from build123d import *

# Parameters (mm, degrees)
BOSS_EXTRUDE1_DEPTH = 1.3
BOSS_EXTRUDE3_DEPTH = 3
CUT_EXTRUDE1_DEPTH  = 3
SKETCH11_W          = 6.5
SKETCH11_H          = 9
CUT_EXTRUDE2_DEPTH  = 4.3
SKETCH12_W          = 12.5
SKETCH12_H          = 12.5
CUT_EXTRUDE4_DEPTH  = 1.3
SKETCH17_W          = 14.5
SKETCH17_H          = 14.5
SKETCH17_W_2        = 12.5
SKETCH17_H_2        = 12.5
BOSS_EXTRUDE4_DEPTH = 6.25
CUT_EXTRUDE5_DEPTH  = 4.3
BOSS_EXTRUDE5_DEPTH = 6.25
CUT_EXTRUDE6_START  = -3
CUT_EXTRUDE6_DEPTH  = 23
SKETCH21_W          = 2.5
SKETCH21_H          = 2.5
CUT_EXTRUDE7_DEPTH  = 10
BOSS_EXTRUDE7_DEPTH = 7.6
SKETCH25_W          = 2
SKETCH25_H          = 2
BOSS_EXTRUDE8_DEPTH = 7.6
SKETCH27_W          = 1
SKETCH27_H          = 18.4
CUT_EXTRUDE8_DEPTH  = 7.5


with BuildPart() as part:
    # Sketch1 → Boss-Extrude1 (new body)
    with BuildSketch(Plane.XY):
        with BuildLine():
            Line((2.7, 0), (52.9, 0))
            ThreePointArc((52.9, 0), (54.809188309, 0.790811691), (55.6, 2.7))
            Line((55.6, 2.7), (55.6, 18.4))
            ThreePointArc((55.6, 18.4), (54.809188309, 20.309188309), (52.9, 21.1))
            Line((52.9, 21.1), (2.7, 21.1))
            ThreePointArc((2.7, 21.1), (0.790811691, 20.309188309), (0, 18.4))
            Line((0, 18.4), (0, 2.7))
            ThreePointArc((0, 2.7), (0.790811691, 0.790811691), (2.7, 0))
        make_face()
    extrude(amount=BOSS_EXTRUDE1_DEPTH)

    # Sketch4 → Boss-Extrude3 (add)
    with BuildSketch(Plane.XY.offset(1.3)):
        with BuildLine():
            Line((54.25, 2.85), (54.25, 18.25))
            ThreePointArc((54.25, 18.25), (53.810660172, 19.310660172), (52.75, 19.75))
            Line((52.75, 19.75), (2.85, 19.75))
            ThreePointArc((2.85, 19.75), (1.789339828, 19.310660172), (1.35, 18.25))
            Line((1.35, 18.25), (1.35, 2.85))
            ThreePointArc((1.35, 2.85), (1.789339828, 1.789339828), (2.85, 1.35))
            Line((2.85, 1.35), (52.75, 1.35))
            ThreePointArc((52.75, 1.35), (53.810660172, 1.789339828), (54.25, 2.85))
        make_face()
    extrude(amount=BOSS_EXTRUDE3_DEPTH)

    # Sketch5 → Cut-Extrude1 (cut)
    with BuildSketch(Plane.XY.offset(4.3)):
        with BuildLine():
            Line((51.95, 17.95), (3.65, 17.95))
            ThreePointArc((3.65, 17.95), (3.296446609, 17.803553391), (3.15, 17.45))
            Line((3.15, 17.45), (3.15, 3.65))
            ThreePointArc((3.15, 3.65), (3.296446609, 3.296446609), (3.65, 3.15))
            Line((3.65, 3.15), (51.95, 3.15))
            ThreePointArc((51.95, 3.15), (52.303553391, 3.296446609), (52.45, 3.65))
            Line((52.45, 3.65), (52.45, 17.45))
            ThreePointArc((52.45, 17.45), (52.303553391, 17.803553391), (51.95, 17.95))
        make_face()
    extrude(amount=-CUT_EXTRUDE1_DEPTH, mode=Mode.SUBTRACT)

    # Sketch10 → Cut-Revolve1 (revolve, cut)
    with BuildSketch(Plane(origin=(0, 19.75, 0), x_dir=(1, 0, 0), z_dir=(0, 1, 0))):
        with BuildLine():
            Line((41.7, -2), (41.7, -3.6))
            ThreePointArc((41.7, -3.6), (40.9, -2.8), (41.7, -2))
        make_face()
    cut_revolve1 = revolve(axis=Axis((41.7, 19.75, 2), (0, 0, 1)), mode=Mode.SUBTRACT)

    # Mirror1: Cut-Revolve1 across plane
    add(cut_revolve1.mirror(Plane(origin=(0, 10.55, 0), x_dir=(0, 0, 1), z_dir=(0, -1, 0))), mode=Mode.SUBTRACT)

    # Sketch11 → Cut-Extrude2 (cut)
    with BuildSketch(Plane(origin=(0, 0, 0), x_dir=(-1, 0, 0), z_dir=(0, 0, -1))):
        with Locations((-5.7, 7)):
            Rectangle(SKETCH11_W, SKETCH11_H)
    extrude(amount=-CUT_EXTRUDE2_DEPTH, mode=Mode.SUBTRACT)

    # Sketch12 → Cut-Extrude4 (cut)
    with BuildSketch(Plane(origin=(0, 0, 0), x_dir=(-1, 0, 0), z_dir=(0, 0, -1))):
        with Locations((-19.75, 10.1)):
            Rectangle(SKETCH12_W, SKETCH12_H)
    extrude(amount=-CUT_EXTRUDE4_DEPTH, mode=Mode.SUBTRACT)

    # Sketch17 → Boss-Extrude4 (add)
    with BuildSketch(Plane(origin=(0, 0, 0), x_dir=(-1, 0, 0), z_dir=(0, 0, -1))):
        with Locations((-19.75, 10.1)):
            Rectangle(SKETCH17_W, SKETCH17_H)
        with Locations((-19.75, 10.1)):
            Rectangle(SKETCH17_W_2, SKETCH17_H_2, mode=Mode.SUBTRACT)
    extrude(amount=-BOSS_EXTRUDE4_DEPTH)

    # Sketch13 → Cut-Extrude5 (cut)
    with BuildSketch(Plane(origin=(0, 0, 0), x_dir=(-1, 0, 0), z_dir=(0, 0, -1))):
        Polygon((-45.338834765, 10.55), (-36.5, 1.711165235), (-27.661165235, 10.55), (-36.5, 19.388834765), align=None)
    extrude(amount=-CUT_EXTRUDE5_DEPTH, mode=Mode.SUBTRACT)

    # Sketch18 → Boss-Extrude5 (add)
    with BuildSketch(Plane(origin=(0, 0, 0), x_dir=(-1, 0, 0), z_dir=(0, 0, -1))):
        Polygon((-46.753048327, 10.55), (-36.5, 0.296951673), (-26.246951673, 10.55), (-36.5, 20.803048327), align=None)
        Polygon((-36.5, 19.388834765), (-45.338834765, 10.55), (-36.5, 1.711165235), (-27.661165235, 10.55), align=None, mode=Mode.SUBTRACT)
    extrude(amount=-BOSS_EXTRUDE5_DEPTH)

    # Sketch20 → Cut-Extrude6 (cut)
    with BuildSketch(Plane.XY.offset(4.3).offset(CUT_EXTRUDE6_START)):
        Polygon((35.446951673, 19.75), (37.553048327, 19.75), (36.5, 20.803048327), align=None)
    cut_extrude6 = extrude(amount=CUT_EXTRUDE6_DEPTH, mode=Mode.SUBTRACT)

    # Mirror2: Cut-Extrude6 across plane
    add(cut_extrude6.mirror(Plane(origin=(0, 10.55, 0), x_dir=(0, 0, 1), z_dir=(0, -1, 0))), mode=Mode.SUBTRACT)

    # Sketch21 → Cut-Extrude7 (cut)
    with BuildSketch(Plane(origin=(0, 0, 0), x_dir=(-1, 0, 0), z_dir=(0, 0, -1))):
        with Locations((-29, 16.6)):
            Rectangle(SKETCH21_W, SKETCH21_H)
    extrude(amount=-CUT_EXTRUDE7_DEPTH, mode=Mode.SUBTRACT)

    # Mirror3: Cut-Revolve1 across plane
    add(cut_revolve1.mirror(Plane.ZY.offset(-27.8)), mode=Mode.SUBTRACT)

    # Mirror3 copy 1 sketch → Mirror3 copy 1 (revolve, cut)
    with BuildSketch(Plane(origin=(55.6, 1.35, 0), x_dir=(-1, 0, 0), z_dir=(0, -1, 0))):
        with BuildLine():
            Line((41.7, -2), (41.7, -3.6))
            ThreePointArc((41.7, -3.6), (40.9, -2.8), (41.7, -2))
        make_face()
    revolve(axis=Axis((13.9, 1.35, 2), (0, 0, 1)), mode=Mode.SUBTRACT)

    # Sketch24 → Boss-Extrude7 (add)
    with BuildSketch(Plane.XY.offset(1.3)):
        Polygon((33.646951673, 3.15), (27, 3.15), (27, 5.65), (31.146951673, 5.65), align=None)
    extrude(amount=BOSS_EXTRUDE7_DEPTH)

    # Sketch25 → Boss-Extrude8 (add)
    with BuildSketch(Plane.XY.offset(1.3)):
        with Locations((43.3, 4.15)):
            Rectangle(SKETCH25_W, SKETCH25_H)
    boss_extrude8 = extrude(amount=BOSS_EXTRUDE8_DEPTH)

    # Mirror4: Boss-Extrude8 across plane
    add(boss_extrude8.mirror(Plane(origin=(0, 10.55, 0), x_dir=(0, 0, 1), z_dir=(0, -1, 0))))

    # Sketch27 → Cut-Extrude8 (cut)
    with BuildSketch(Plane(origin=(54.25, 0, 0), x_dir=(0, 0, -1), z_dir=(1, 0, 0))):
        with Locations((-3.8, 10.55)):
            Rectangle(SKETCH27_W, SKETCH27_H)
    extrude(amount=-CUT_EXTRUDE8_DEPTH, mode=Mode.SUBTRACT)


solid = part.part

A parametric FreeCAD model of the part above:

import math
import FreeCAD as App
import Part
import Sketcher
from FreeCAD import Vector
Q = App.Units.Quantity

doc = App.newDocument("Part")
body = doc.addObject("PartDesign::Body", "Body")

sketch1 = doc.addObject("Sketcher::SketchObject", "Sketch")
body.addObject(sketch1)
sketch1.AttachmentSupport = (doc.XY_Plane, [""])
sketch1.MapMode = "FlatFace"
sketch1.addGeometry([
    Part.LineSegment(Vector(2.7, 0, 0), Vector(52.9, 0, 0)),
    Part.ArcOfCircle(Part.Circle(Vector(52.9, 2.7, 0), Vector(0, 0, 1), 2.7), math.radians(-90), math.radians(0)),
    Part.LineSegment(Vector(55.6, 2.7, 0), Vector(55.6, 18.4, 0)),
    Part.ArcOfCircle(Part.Circle(Vector(52.9, 18.4, 0), Vector(0, 0, 1), 2.7), math.radians(0), math.radians(90)),
    Part.LineSegment(Vector(52.9, 21.1, 0), Vector(2.7, 21.1, 0)),
    Part.ArcOfCircle(Part.Circle(Vector(2.7, 18.4, 0), Vector(0, 0, 1), 2.7), math.radians(90), math.radians(180)),
    Part.LineSegment(Vector(0, 18.4, 0), Vector(0, 2.7, 0)),
    Part.ArcOfCircle(Part.Circle(Vector(2.7, 2.7, 0), Vector(0, 0, 1), 2.7), math.radians(-180), math.radians(-90)),
], False)
sketch1.addConstraint([
    Sketcher.Constraint("Tangent", 0, 2, 1, 1),
    Sketcher.Constraint("Tangent", 1, 2, 2, 1),
    Sketcher.Constraint("Tangent", 2, 2, 3, 1),
    Sketcher.Constraint("Tangent", 3, 2, 4, 1),
    Sketcher.Constraint("Tangent", 4, 2, 5, 1),
    Sketcher.Constraint("Tangent", 5, 2, 6, 1),
    Sketcher.Constraint("Tangent", 6, 2, 7, 1),
    Sketcher.Constraint("Tangent", 7, 2, 0, 1),
    Sketcher.Constraint("Horizontal", 0),
    Sketcher.Constraint("Vertical", 2),
    Sketcher.Constraint("Horizontal", 4),
    Sketcher.Constraint("Vertical", 6),
    Sketcher.Constraint("Equal", 1, 3),
    Sketcher.Constraint("Equal", 3, 5),
    Sketcher.Constraint("Equal", 5, 7),
    Sketcher.Constraint("PointOnObject", 0, 2, -1),
    Sketcher.Constraint("PointOnObject", 5, 2, -2),
    Sketcher.Constraint("Radius", 1, 2.7),
    Sketcher.Constraint("DistanceX", 0, 1, 0, 2, 50.2),
    Sketcher.Constraint("DistanceY", 2, 1, 2, 2, 15.7),
])
pad1 = doc.addObject("PartDesign::Pad", "Pad")
body.addObject(pad1)
pad1.Profile = sketch1
pad1.Length = 1.3

sketch2 = doc.addObject("Sketcher::SketchObject", "Sketch001")
body.addObject(sketch2)
sketch2.AttachmentSupport = (doc.XY_Plane, [""])
sketch2.MapMode = "FlatFace"
sketch2.AttachmentOffset = App.Placement(Vector(0, 0, 1.3), App.Rotation())
sketch2.addGeometry([
    Part.LineSegment(Vector(54.2, 2.9, 0), Vector(54.2, 18.2, 0)),
    Part.ArcOfCircle(Part.Circle(Vector(52.8, 18.3, 0), Vector(0, 0, 1), 1.5), math.radians(0), math.radians(90)),
    Part.LineSegment(Vector(52.8, 19.8, 0), Vector(2.9, 19.8, 0)),
    Part.ArcOfCircle(Part.Circle(Vector(2.8, 18.3, 0), Vector(0, 0, 1), 1.5), math.radians(90), math.radians(180)),
    Part.LineSegment(Vector(1.4, 18.2, 0), Vector(1.4, 2.9, 0)),
    Part.ArcOfCircle(Part.Circle(Vector(2.8, 2.8, 0), Vector(0, 0, 1), 1.5), math.radians(180), math.radians(270)),
    Part.LineSegment(Vector(2.9, 1.4, 0), Vector(52.8, 1.4, 0)),
    Part.ArcOfCircle(Part.Circle(Vector(52.8, 2.8, 0), Vector(0, 0, 1), 1.5), math.radians(-90), math.radians(0)),
], False)
sketch2.addConstraint([
    Sketcher.Constraint("Tangent", 0, 2, 1, 1),
    Sketcher.Constraint("Tangent", 1, 2, 2, 1),
    Sketcher.Constraint("Tangent", 2, 2, 3, 1),
    Sketcher.Constraint("Tangent", 3, 2, 4, 1),
    Sketcher.Constraint("Tangent", 4, 2, 5, 1),
    Sketcher.Constraint("Tangent", 5, 2, 6, 1),
    Sketcher.Constraint("Tangent", 6, 2, 7, 1),
    Sketcher.Constraint("Tangent", 7, 2, 0, 1),
    Sketcher.Constraint("Vertical", 0),
    Sketcher.Constraint("Horizontal", 2),
    Sketcher.Constraint("Vertical", 4),
    Sketcher.Constraint("Horizontal", 6),
    Sketcher.Constraint("Equal", 1, 3),
    Sketcher.Constraint("Equal", 3, 5),
    Sketcher.Constraint("Equal", 5, 7),
    Sketcher.Constraint("Radius", 1, 1.5),
    Sketcher.Constraint("DistanceX", 2, 2, 2, 1, 49.9),
    Sketcher.Constraint("DistanceY", 0, 1, 0, 2, 15.4),
    Sketcher.Constraint("DistanceX", -1, 1, 1, 3, 52.75),
    Sketcher.Constraint("DistanceY", -1, 1, 1, 3, 18.25),
])
pad2 = doc.addObject("PartDesign::Pad", "Pad001")
body.addObject(pad2)
pad2.Profile = sketch2
pad2.Length = 3

sketch3 = doc.addObject("Sketcher::SketchObject", "Sketch002")
body.addObject(sketch3)
sketch3.AttachmentSupport = (doc.XY_Plane, [""])
sketch3.MapMode = "FlatFace"
sketch3.AttachmentOffset = App.Placement(Vector(0, 0, 4.3), App.Rotation())
sketch3.addGeometry([
    Part.LineSegment(Vector(51.95, 17.95, 0), Vector(3.65, 17.95, 0)),
    Part.ArcOfCircle(Part.Circle(Vector(3.65, 17.45, 0), Vector(0, 0, 1), 0.5), math.radians(90), math.radians(180)),
    Part.LineSegment(Vector(3.15, 17.45, 0), Vector(3.15, 3.65, 0)),
    Part.ArcOfCircle(Part.Circle(Vector(3.65, 3.65, 0), Vector(0, 0, 1), 0.5), math.radians(180), math.radians(270)),
    Part.LineSegment(Vector(3.65, 3.15, 0), Vector(51.95, 3.15, 0)),
    Part.ArcOfCircle(Part.Circle(Vector(51.95, 3.65, 0), Vector(0, 0, 1), 0.5), math.radians(-90), math.radians(0)),
    Part.LineSegment(Vector(52.45, 3.65, 0), Vector(52.45, 17.45, 0)),
    Part.ArcOfCircle(Part.Circle(Vector(51.95, 17.45, 0), Vector(0, 0, 1), 0.5), math.radians(0), math.radians(90)),
], False)
sketch3.addConstraint([
    Sketcher.Constraint("Tangent", 0, 2, 1, 1),
    Sketcher.Constraint("Tangent", 1, 2, 2, 1),
    Sketcher.Constraint("Tangent", 2, 2, 3, 1),
    Sketcher.Constraint("Tangent", 3, 2, 4, 1),
    Sketcher.Constraint("Tangent", 4, 2, 5, 1),
    Sketcher.Constraint("Tangent", 5, 2, 6, 1),
    Sketcher.Constraint("Tangent", 6, 2, 7, 1),
    Sketcher.Constraint("Tangent", 7, 2, 0, 1),
    Sketcher.Constraint("Horizontal", 0),
    Sketcher.Constraint("Vertical", 2),
    Sketcher.Constraint("Horizontal", 4),
    Sketcher.Constraint("Vertical", 6),
    Sketcher.Constraint("Equal", 1, 3),
    Sketcher.Constraint("Equal", 3, 5),
    Sketcher.Constraint("Equal", 5, 7),
    Sketcher.Constraint("Radius", 1, 0.5),
    Sketcher.Constraint("DistanceX", 0, 2, 0, 1, 48.3),
    Sketcher.Constraint("DistanceY", 2, 2, 2, 1, 13.8),
    Sketcher.Constraint("DistanceX", -1, 1, 1, 3, 3.65),
    Sketcher.Constraint("DistanceY", -1, 1, 1, 3, 17.45),
])
pocket1 = doc.addObject("PartDesign::Pocket", "Pocket")
body.addObject(pocket1)
pocket1.Profile = sketch3
pocket1.Length = 3

sketch4 = doc.addObject("Sketcher::SketchObject", "Sketch003")
body.addObject(sketch4)
sketch4.AttachmentSupport = (doc.XZ_Plane, [""])
sketch4.MapMode = "FlatFace"
sketch4.AttachmentOffset = App.Placement(Vector(0, 0, -19.75), App.Rotation())
sketch4.addGeometry([
    Part.LineSegment(Vector(41.7, 3.6, 0), Vector(41.7, 2, 0)),
    Part.ArcOfCircle(Part.Circle(Vector(41.7, 2.8, 0), Vector(0, 0, 1), 0.8), math.radians(90), math.radians(270)),
], False)
sketch4.addGeometry(Part.LineSegment(Vector(41.7, 2, 0), Vector(41.7, 3.6, 0)), True)
sketch4.addConstraint([
    Sketcher.Constraint("Coincident", 0, 1, 1, 1),
    Sketcher.Constraint("Coincident", 1, 2, 0, 2),
    Sketcher.Constraint("Vertical", 0),
    Sketcher.Constraint("Vertical", 2),
    Sketcher.Constraint("Coincident", 2, 1, 1, 2),
    Sketcher.Constraint("Vertical", 1, 3, 0, 1),
    Sketcher.Constraint("Equal", 0, 2),
    Sketcher.Constraint("Radius", 1, 0.8),
    Sketcher.Constraint("DistanceY", -1, 1, 1, 2, 2.0),
    Sketcher.Constraint("DistanceX", -1, 1, 1, 3, 41.7),
])
groove = doc.addObject("PartDesign::Groove", "Groove")
body.addObject(groove)
groove.Profile = sketch4
groove.ReferenceAxis = (sketch4, ["Axis0"])
groove.Angle = 360
doc.recompute()

datumplane = doc.addObject("PartDesign::Plane", "DatumPlane")
body.addObject(datumplane)
datumplane.AttachmentSupport = (doc.XZ_Plane, [""])
datumplane.MapMode = "FlatFace"
datumplane.AttachmentOffset = App.Placement(Vector(0, 0, -10.55), App.Rotation())
mirrored = doc.addObject("PartDesign::Mirrored", "Mirrored")
body.addObject(mirrored)
mirrored.Originals = [groove]
mirrored.MirrorPlane = (datumplane, [""])
body.Tip = mirrored

sketch5 = doc.addObject("Sketcher::SketchObject", "Sketch004")
body.addObject(sketch5)
sketch5.AttachmentSupport = (doc.XY_Plane, [""])
sketch5.MapMode = "FlatFace"
sketch5.addGeometry([
    Part.LineSegment(Vector(9, 12, 0), Vector(9, 2, 0)),
    Part.LineSegment(Vector(9, 2, 0), Vector(2, 2, 0)),
    Part.LineSegment(Vector(2, 2, 0), Vector(2, 12, 0)),
    Part.LineSegment(Vector(2, 12, 0), Vector(9, 12, 0)),
], False)
sketch5.addConstraint([
    Sketcher.Constraint("Coincident", 0, 2, 1, 1),
    Sketcher.Constraint("Coincident", 1, 2, 2, 1),
    Sketcher.Constraint("Coincident", 2, 2, 3, 1),
    Sketcher.Constraint("Coincident", 3, 2, 0, 1),
    Sketcher.Constraint("Vertical", 0),
    Sketcher.Constraint("Horizontal", 1),
    Sketcher.Constraint("Vertical", 2),
    Sketcher.Constraint("Horizontal", 3),
    Sketcher.Constraint("DistanceY", 0, 2, 0, 1, 9.0),
    Sketcher.Constraint("DistanceX", 1, 2, 1, 1, 6.5),
    Sketcher.Constraint("DistanceY", -1, 1, 0, 2, 2.5),
    Sketcher.Constraint("DistanceX", -1, 1, 0, 2, 8.95),
])
pocket2 = doc.addObject("PartDesign::Pocket", "Pocket001")
body.addObject(pocket2)
pocket2.Profile = sketch5
pocket2.Length = 4.3
pocket2.Reversed = True

sketch6 = doc.addObject("Sketcher::SketchObject", "Sketch005")
body.addObject(sketch6)
sketch6.AttachmentSupport = (doc.XY_Plane, [""])
sketch6.MapMode = "FlatFace"
sketch6.addGeometry([
    Part.LineSegment(Vector(26, 16, 0), Vector(26, 4, 0)),
    Part.LineSegment(Vector(26, 4, 0), Vector(14, 4, 0)),
    Part.LineSegment(Vector(14, 4, 0), Vector(14, 16, 0)),
    Part.LineSegment(Vector(14, 16, 0), Vector(26, 16, 0)),
], False)
sketch6.addConstraint([
    Sketcher.Constraint("Coincident", 0, 2, 1, 1),
    Sketcher.Constraint("Coincident", 1, 2, 2, 1),
    Sketcher.Constraint("Coincident", 2, 2, 3, 1),
    Sketcher.Constraint("Coincident", 3, 2, 0, 1),
    Sketcher.Constraint("Vertical", 0),
    Sketcher.Constraint("Horizontal", 1),
    Sketcher.Constraint("Vertical", 2),
    Sketcher.Constraint("Horizontal", 3),
    Sketcher.Constraint("Equal", 3, 0),
    Sketcher.Constraint("DistanceX", 1, 2, 1, 1, 12.5),
    Sketcher.Constraint("DistanceX", -1, 1, 0, 2, 26.0),
    Sketcher.Constraint("DistanceY", -1, 1, 0, 2, 3.85),
])
pocket3 = doc.addObject("PartDesign::Pocket", "Pocket002")
body.addObject(pocket3)
pocket3.Profile = sketch6
pocket3.Length = 1.3
pocket3.Reversed = True

sketch7 = doc.addObject("Sketcher::SketchObject", "Sketch006")
body.addObject(sketch7)
sketch7.AttachmentSupport = (doc.XY_Plane, [""])
sketch7.MapMode = "FlatFace"
sketch7.addGeometry([
    Part.LineSegment(Vector(27, 17, 0), Vector(27, 3, 0)),
    Part.LineSegment(Vector(27, 3, 0), Vector(12, 3, 0)),
    Part.LineSegment(Vector(12, 3, 0), Vector(12, 17, 0)),
    Part.LineSegment(Vector(12, 17, 0), Vector(27, 17, 0)),
    Part.LineSegment(Vector(14, 4, 0), Vector(26, 4, 0)),
    Part.LineSegment(Vector(26, 4, 0), Vector(26, 16, 0)),
    Part.LineSegment(Vector(26, 16, 0), Vector(14, 16, 0)),
    Part.LineSegment(Vector(14, 16, 0), Vector(14, 4, 0)),
], False)
sketch7.addConstraint([
    Sketcher.Constraint("Coincident", 0, 2, 1, 1),
    Sketcher.Constraint("Coincident", 1, 2, 2, 1),
    Sketcher.Constraint("Coincident", 2, 2, 3, 1),
    Sketcher.Constraint("Coincident", 3, 2, 0, 1),
    Sketcher.Constraint("Coincident", 4, 2, 5, 1),
    Sketcher.Constraint("Coincident", 5, 2, 6, 1),
    Sketcher.Constraint("Coincident", 6, 2, 7, 1),
    Sketcher.Constraint("Coincident", 7, 2, 4, 1),
    Sketcher.Constraint("Vertical", 0),
    Sketcher.Constraint("Horizontal", 1),
    Sketcher.Constraint("Vertical", 2),
    Sketcher.Constraint("Horizontal", 3),
    Sketcher.Constraint("Horizontal", 4),
    Sketcher.Constraint("Vertical", 5),
    Sketcher.Constraint("Horizontal", 6),
    Sketcher.Constraint("Vertical", 7),
    Sketcher.Constraint("Equal", 3, 0),
    Sketcher.Constraint("Equal", 6, 5),
    Sketcher.Constraint("DistanceX", 1, 2, 1, 1, 14.5),
    Sketcher.Constraint("DistanceX", 4, 1, 4, 2, 12.5),
    Sketcher.Constraint("DistanceX", -1, 1, 0, 2, 27.0),
    Sketcher.Constraint("DistanceX", -1, 1, 4, 2, 26.0),
    Sketcher.Constraint("DistanceY", 0, 2, 4, 2, 1.0),
    Sketcher.Constraint("DistanceY", -1, 1, 0, 2, 2.85),
])
pad3 = doc.addObject("PartDesign::Pad", "Pad002")
body.addObject(pad3)
pad3.Profile = sketch7
pad3.Length = 6.25

sketch8 = doc.addObject("Sketcher::SketchObject", "Sketch007")
body.addObject(sketch8)
sketch8.AttachmentSupport = (doc.XY_Plane, [""])
sketch8.MapMode = "FlatFace"
sketch8.addGeometry([
    Part.LineSegment(Vector(45, 11, 0), Vector(36, 2, 0)),
    Part.LineSegment(Vector(36, 2, 0), Vector(28, 11, 0)),
    Part.LineSegment(Vector(28, 11, 0), Vector(36, 19, 0)),
    Part.LineSegment(Vector(36, 19, 0), Vector(45, 11, 0)),
], False)
sketch8.addConstraint([
    Sketcher.Constraint("Coincident", 0, 2, 1, 1),
    Sketcher.Constraint("Coincident", 1, 2, 2, 1),
    Sketcher.Constraint("Coincident", 2, 2, 3, 1),
    Sketcher.Constraint("Coincident", 3, 2, 0, 1),
    Sketcher.Constraint("Perpendicular", 0, 1),
    Sketcher.Constraint("Perpendicular", 1, 2),
    Sketcher.Constraint("Perpendicular", 2, 3),
    Sketcher.Constraint("Horizontal", 1, 2, 3, 2),
    Sketcher.Constraint("Vertical", 0, 2, 2, 2),
    Sketcher.Constraint("Distance", 0, 12.5),
    Sketcher.Constraint("DistanceX", -1, 1, 0, 2, 36.5),
    Sketcher.Constraint("DistanceY", -1, 1, 1, 2, 10.55),
])
pocket4 = doc.addObject("PartDesign::Pocket", "Pocket003")
body.addObject(pocket4)
pocket4.Profile = sketch8
pocket4.Length = 4.3
pocket4.Reversed = True

sketch9 = doc.addObject("Sketcher::SketchObject", "Sketch008")
body.addObject(sketch9)
sketch9.AttachmentSupport = (doc.XY_Plane, [""])
sketch9.MapMode = "FlatFace"
sketch9.addGeometry([
    Part.LineSegment(Vector(47, 11, 0), Vector(36, 0, 0)),
    Part.LineSegment(Vector(36, 0, 0), Vector(26, 11, 0)),
    Part.LineSegment(Vector(26, 11, 0), Vector(36, 21, 0)),
    Part.LineSegment(Vector(36, 21, 0), Vector(47, 11, 0)),
    Part.LineSegment(Vector(45, 11, 0), Vector(36, 19, 0)),
    Part.LineSegment(Vector(36, 19, 0), Vector(28, 11, 0)),
    Part.LineSegment(Vector(28, 11, 0), Vector(36, 2, 0)),
    Part.LineSegment(Vector(36, 2, 0), Vector(45, 11, 0)),
], False)
sketch9.addConstraint([
    Sketcher.Constraint("Coincident", 0, 2, 1, 1),
    Sketcher.Constraint("Coincident", 1, 2, 2, 1),
    Sketcher.Constraint("Coincident", 2, 2, 3, 1),
    Sketcher.Constraint("Coincident", 3, 2, 0, 1),
    Sketcher.Constraint("Coincident", 4, 2, 5, 1),
    Sketcher.Constraint("Coincident", 5, 2, 6, 1),
    Sketcher.Constraint("Coincident", 6, 2, 7, 1),
    Sketcher.Constraint("Coincident", 7, 2, 4, 1),
    Sketcher.Constraint("Perpendicular", 0, 1),
    Sketcher.Constraint("Perpendicular", 1, 2),
    Sketcher.Constraint("Perpendicular", 2, 3),
    Sketcher.Constraint("Parallel", 3, 4),
    Sketcher.Constraint("Perpendicular", 4, 5),
    Sketcher.Constraint("Perpendicular", 5, 6),
    Sketcher.Constraint("Perpendicular", 6, 7),
    Sketcher.Constraint("Horizontal", 1, 2, 3, 2),
    Sketcher.Constraint("Horizontal", 3, 2, 5, 2),
    Sketcher.Constraint("Horizontal", 5, 2, 7, 2),
    Sketcher.Constraint("Vertical", 0, 2, 2, 2),
    Sketcher.Constraint("Vertical", 2, 2, 4, 2),
    Sketcher.Constraint("Distance", 0, 14.5),
    Sketcher.Constraint("Distance", 4, 12.5),
    Sketcher.Constraint("DistanceX", -1, 1, 0, 2, 36.5),
    Sketcher.Constraint("DistanceY", -1, 1, 1, 2, 10.55),
])
pad4 = doc.addObject("PartDesign::Pad", "Pad003")
body.addObject(pad4)
pad4.Profile = sketch9
pad4.Length = 6.25

sketch10 = doc.addObject("Sketcher::SketchObject", "Sketch009")
body.addObject(sketch10)
sketch10.AttachmentSupport = (doc.XY_Plane, [""])
sketch10.MapMode = "FlatFace"
sketch10.AttachmentOffset = App.Placement(Vector(0, 0, 1.3), App.Rotation())
sketch10.addGeometry([
    Part.LineSegment(Vector(35.4, 19.8, 0), Vector(37.6, 19.8, 0)),
    Part.LineSegment(Vector(37.6, 19.8, 0), Vector(36.5, 20.8, 0)),
    Part.LineSegment(Vector(36.5, 20.8, 0), Vector(35.4, 19.8, 0)),
], False)
sketch10.addConstraint([
    Sketcher.Constraint("Coincident", 0, 2, 1, 1),
    Sketcher.Constraint("Coincident", 1, 2, 2, 1),
    Sketcher.Constraint("Coincident", 2, 2, 0, 1),
    Sketcher.Constraint("Horizontal", 0),
    Sketcher.Constraint("Perpendicular", 1, 2),
    Sketcher.Constraint("Equal", 1, 2),
    Sketcher.Constraint("DistanceX", -1, 1, 1, 2, 36.5),
    Sketcher.Constraint("DistanceY", -1, 1, 0, 2, 19.75),
    Sketcher.Constraint("DistanceX", 0, 1, 0, 2, 2.106097),
])
pocket5 = doc.addObject("PartDesign::Pocket", "Pocket004")
body.addObject(pocket5)
pocket5.Profile = sketch10
pocket5.Length = 23
pocket5.Reversed = True
doc.recompute()

datumplane2 = doc.addObject("PartDesign::Plane", "DatumPlane001")
body.addObject(datumplane2)
datumplane2.AttachmentSupport = (doc.XZ_Plane, [""])
datumplane2.MapMode = "FlatFace"
datumplane2.AttachmentOffset = App.Placement(Vector(0, 0, -10.55), App.Rotation())
mirrored2 = doc.addObject("PartDesign::Mirrored", "Mirrored001")
body.addObject(mirrored2)
mirrored2.Originals = [pocket5]
mirrored2.MirrorPlane = (datumplane2, [""])
body.Tip = mirrored2

sketch11 = doc.addObject("Sketcher::SketchObject", "Sketch010")
body.addObject(sketch11)
sketch11.AttachmentSupport = (doc.XY_Plane, [""])
sketch11.MapMode = "FlatFace"
sketch11.addGeometry([
    Part.LineSegment(Vector(30.2, 17.9, 0), Vector(30.2, 15.3, 0)),
    Part.LineSegment(Vector(30.2, 15.3, 0), Vector(27.8, 15.3, 0)),
    Part.LineSegment(Vector(27.8, 15.3, 0), Vector(27.8, 17.9, 0)),
    Part.LineSegment(Vector(27.8, 17.9, 0), Vector(30.2, 17.9, 0)),
], False)
sketch11.addConstraint([
    Sketcher.Constraint("Coincident", 0, 2, 1, 1),
    Sketcher.Constraint("Coincident", 1, 2, 2, 1),
    Sketcher.Constraint("Coincident", 2, 2, 3, 1),
    Sketcher.Constraint("Coincident", 3, 2, 0, 1),
    Sketcher.Constraint("Vertical", 0),
    Sketcher.Constraint("Horizontal", 1),
    Sketcher.Constraint("Vertical", 2),
    Sketcher.Constraint("Horizontal", 3),
    Sketcher.Constraint("Equal", 3, 0),
    Sketcher.Constraint("DistanceX", 1, 2, 1, 1, 2.5),
    Sketcher.Constraint("DistanceX", -1, 1, 0, 2, 30.25),
    Sketcher.Constraint("DistanceY", -1, 1, 0, 2, 15.35),
])
pocket6 = doc.addObject("PartDesign::Pocket", "Pocket005")
body.addObject(pocket6)
pocket6.Profile = sketch11
pocket6.Length = 10
pocket6.Reversed = True
doc.recompute()

datumplane3 = doc.addObject("PartDesign::Plane", "DatumPlane002")
body.addObject(datumplane3)
datumplane3.AttachmentSupport = (doc.YZ_Plane, [""])
datumplane3.MapMode = "FlatFace"
datumplane3.AttachmentOffset = App.Placement(Vector(0, 0, 27.8), App.Rotation())
mirrored3 = doc.addObject("PartDesign::Mirrored", "Mirrored002")
body.addObject(mirrored3)
mirrored3.Originals = [groove]
mirrored3.MirrorPlane = (datumplane3, [""])
body.Tip = mirrored3

sketch12 = doc.addObject("Sketcher::SketchObject", "Sketch011")
body.addObject(sketch12)
sketch12.AttachmentSupport = (doc.XZ_Plane, [""])
sketch12.MapMode = "FlatFace"
sketch12.AttachmentOffset = App.Placement(Vector(0, 0, -1.35), App.Rotation())
sketch12.addGeometry([
    Part.LineSegment(Vector(13.9, 3.6, 0), Vector(13.9, 2, 0)),
    Part.ArcOfCircle(Part.Circle(Vector(13.9, 2.8, 0), Vector(0, 0, 1), 0.8), math.radians(-90), math.radians(90)),
], False)
sketch12.addGeometry(Part.LineSegment(Vector(13.9, 2, 0), Vector(13.9, 3.6, 0)), True)
sketch12.addConstraint([
    Sketcher.Constraint("Coincident", 0, 1, 1, 2),
    Sketcher.Constraint("Coincident", 1, 1, 0, 2),
    Sketcher.Constraint("Vertical", 0),
    Sketcher.Constraint("Vertical", 2),
    Sketcher.Constraint("Coincident", 2, 1, 1, 1),
    Sketcher.Constraint("Vertical", 1, 3, 0, 1),
    Sketcher.Constraint("Equal", 0, 2),
    Sketcher.Constraint("Radius", 1, 0.8),
    Sketcher.Constraint("DistanceY", -1, 1, 1, 1, 2.0),
    Sketcher.Constraint("DistanceX", -1, 1, 1, 3, 13.9),
])
groove2 = doc.addObject("PartDesign::Groove", "Groove001")
body.addObject(groove2)
groove2.Profile = sketch12
groove2.ReferenceAxis = (sketch12, ["Axis0"])
groove2.Angle = 360

sketch13 = doc.addObject("Sketcher::SketchObject", "Sketch012")
body.addObject(sketch13)
sketch13.AttachmentSupport = (doc.XY_Plane, [""])
sketch13.MapMode = "FlatFace"
sketch13.AttachmentOffset = App.Placement(Vector(0, 0, 1.3), App.Rotation())
sketch13.addGeometry([
    Part.LineSegment(Vector(27, 3.1, 0), Vector(33.6, 3.1, 0)),
    Part.LineSegment(Vector(33.6, 3.1, 0), Vector(31.1, 5.7, 0)),
    Part.LineSegment(Vector(31.1, 5.7, 0), Vector(27, 5.7, 0)),
    Part.LineSegment(Vector(27, 5.7, 0), Vector(27, 3.1, 0)),
], False)
sketch13.addConstraint([
    Sketcher.Constraint("Coincident", 0, 2, 1, 1),
    Sketcher.Constraint("Coincident", 1, 2, 2, 1),
    Sketcher.Constraint("Coincident", 2, 2, 3, 1),
    Sketcher.Constraint("Coincident", 3, 2, 0, 1),
    Sketcher.Constraint("Horizontal", 0),
    Sketcher.Constraint("Horizontal", 2),
    Sketcher.Constraint("Vertical", 3),
    Sketcher.Constraint("Angle", 1, Q("135 deg")),
    Sketcher.Constraint("DistanceY", 3, 2, 3, 1, 2.5),
    Sketcher.Constraint("DistanceX", -1, 1, 2, 2, 27.0),
    Sketcher.Constraint("DistanceY", -1, 1, 0, 2, 3.15),
    Sketcher.Constraint("DistanceX", 0, 1, 0, 2, 6.646952),
])
pad5 = doc.addObject("PartDesign::Pad", "Pad004")
body.addObject(pad5)
pad5.Profile = sketch13
pad5.Length = 7.6

sketch14 = doc.addObject("Sketcher::SketchObject", "Sketch013")
body.addObject(sketch14)
sketch14.AttachmentSupport = (doc.XY_Plane, [""])
sketch14.MapMode = "FlatFace"
sketch14.AttachmentOffset = App.Placement(Vector(0, 0, 1.3), App.Rotation())
sketch14.addGeometry([
    Part.LineSegment(Vector(42.3, 5.2, 0), Vector(42.3, 3.1, 0)),
    Part.LineSegment(Vector(42.3, 3.1, 0), Vector(44.3, 3.1, 0)),
    Part.LineSegment(Vector(44.3, 3.1, 0), Vector(44.3, 5.2, 0)),
    Part.LineSegment(Vector(44.3, 5.2, 0), Vector(42.3, 5.2, 0)),
], False)
sketch14.addConstraint([
    Sketcher.Constraint("Coincident", 0, 2, 1, 1),
    Sketcher.Constraint("Coincident", 1, 2, 2, 1),
    Sketcher.Constraint("Coincident", 2, 2, 3, 1),
    Sketcher.Constraint("Coincident", 3, 2, 0, 1),
    Sketcher.Constraint("Vertical", 0),
    Sketcher.Constraint("Horizontal", 1),
    Sketcher.Constraint("Vertical", 2),
    Sketcher.Constraint("Horizontal", 3),
    Sketcher.Constraint("Equal", 3, 0),
    Sketcher.Constraint("DistanceX", 1, 1, 1, 2, 2.0),
    Sketcher.Constraint("DistanceX", -1, 1, 0, 2, 42.3),
    Sketcher.Constraint("DistanceY", -1, 1, 0, 2, 3.15),
])
pad6 = doc.addObject("PartDesign::Pad", "Pad005")
body.addObject(pad6)
pad6.Profile = sketch14
pad6.Length = 7.6
doc.recompute()

datumplane4 = doc.addObject("PartDesign::Plane", "DatumPlane003")
body.addObject(datumplane4)
datumplane4.AttachmentSupport = (doc.XZ_Plane, [""])
datumplane4.MapMode = "FlatFace"
datumplane4.AttachmentOffset = App.Placement(Vector(0, 0, -10.55), App.Rotation())
mirrored4 = doc.addObject("PartDesign::Mirrored", "Mirrored003")
body.addObject(mirrored4)
mirrored4.Originals = [pad6]
mirrored4.MirrorPlane = (datumplane4, [""])
body.Tip = mirrored4

sketch15 = doc.addObject("Sketcher::SketchObject", "Sketch014")
body.addObject(sketch15)
sketch15.AttachmentSupport = (doc.YZ_Plane, [""])
sketch15.MapMode = "FlatFace"
sketch15.AttachmentOffset = App.Placement(Vector(0, 0, 54.25), App.Rotation())
sketch15.addGeometry([
    Part.LineSegment(Vector(19.8, 4.3, 0), Vector(1.4, 4.3, 0)),
    Part.LineSegment(Vector(1.4, 4.3, 0), Vector(1.4, 3.3, 0)),
    Part.LineSegment(Vector(1.4, 3.3, 0), Vector(19.8, 3.3, 0)),
    Part.LineSegment(Vector(19.8, 3.3, 0), Vector(19.8, 4.3, 0)),
], False)
sketch15.addConstraint([
    Sketcher.Constraint("Coincident", 0, 2, 1, 1),
    Sketcher.Constraint("Coincident", 1, 2, 2, 1),
    Sketcher.Constraint("Coincident", 2, 2, 3, 1),
    Sketcher.Constraint("Coincident", 3, 2, 0, 1),
    Sketcher.Constraint("Horizontal", 0),
    Sketcher.Constraint("Vertical", 1),
    Sketcher.Constraint("Horizontal", 2),
    Sketcher.Constraint("Vertical", 3),
    Sketcher.Constraint("DistanceY", 1, 2, 1, 1, 1.0),
    Sketcher.Constraint("DistanceX", 0, 2, 0, 1, 18.4),
    Sketcher.Constraint("DistanceY", -1, 1, 0, 2, 4.3),
    Sketcher.Constraint("DistanceX", -1, 1, 0, 2, 1.35),
])
pocket7 = doc.addObject("PartDesign::Pocket", "Pocket006")
body.addObject(pocket7)
pocket7.Profile = sketch15
pocket7.Length = 7.5

doc.recompute()
